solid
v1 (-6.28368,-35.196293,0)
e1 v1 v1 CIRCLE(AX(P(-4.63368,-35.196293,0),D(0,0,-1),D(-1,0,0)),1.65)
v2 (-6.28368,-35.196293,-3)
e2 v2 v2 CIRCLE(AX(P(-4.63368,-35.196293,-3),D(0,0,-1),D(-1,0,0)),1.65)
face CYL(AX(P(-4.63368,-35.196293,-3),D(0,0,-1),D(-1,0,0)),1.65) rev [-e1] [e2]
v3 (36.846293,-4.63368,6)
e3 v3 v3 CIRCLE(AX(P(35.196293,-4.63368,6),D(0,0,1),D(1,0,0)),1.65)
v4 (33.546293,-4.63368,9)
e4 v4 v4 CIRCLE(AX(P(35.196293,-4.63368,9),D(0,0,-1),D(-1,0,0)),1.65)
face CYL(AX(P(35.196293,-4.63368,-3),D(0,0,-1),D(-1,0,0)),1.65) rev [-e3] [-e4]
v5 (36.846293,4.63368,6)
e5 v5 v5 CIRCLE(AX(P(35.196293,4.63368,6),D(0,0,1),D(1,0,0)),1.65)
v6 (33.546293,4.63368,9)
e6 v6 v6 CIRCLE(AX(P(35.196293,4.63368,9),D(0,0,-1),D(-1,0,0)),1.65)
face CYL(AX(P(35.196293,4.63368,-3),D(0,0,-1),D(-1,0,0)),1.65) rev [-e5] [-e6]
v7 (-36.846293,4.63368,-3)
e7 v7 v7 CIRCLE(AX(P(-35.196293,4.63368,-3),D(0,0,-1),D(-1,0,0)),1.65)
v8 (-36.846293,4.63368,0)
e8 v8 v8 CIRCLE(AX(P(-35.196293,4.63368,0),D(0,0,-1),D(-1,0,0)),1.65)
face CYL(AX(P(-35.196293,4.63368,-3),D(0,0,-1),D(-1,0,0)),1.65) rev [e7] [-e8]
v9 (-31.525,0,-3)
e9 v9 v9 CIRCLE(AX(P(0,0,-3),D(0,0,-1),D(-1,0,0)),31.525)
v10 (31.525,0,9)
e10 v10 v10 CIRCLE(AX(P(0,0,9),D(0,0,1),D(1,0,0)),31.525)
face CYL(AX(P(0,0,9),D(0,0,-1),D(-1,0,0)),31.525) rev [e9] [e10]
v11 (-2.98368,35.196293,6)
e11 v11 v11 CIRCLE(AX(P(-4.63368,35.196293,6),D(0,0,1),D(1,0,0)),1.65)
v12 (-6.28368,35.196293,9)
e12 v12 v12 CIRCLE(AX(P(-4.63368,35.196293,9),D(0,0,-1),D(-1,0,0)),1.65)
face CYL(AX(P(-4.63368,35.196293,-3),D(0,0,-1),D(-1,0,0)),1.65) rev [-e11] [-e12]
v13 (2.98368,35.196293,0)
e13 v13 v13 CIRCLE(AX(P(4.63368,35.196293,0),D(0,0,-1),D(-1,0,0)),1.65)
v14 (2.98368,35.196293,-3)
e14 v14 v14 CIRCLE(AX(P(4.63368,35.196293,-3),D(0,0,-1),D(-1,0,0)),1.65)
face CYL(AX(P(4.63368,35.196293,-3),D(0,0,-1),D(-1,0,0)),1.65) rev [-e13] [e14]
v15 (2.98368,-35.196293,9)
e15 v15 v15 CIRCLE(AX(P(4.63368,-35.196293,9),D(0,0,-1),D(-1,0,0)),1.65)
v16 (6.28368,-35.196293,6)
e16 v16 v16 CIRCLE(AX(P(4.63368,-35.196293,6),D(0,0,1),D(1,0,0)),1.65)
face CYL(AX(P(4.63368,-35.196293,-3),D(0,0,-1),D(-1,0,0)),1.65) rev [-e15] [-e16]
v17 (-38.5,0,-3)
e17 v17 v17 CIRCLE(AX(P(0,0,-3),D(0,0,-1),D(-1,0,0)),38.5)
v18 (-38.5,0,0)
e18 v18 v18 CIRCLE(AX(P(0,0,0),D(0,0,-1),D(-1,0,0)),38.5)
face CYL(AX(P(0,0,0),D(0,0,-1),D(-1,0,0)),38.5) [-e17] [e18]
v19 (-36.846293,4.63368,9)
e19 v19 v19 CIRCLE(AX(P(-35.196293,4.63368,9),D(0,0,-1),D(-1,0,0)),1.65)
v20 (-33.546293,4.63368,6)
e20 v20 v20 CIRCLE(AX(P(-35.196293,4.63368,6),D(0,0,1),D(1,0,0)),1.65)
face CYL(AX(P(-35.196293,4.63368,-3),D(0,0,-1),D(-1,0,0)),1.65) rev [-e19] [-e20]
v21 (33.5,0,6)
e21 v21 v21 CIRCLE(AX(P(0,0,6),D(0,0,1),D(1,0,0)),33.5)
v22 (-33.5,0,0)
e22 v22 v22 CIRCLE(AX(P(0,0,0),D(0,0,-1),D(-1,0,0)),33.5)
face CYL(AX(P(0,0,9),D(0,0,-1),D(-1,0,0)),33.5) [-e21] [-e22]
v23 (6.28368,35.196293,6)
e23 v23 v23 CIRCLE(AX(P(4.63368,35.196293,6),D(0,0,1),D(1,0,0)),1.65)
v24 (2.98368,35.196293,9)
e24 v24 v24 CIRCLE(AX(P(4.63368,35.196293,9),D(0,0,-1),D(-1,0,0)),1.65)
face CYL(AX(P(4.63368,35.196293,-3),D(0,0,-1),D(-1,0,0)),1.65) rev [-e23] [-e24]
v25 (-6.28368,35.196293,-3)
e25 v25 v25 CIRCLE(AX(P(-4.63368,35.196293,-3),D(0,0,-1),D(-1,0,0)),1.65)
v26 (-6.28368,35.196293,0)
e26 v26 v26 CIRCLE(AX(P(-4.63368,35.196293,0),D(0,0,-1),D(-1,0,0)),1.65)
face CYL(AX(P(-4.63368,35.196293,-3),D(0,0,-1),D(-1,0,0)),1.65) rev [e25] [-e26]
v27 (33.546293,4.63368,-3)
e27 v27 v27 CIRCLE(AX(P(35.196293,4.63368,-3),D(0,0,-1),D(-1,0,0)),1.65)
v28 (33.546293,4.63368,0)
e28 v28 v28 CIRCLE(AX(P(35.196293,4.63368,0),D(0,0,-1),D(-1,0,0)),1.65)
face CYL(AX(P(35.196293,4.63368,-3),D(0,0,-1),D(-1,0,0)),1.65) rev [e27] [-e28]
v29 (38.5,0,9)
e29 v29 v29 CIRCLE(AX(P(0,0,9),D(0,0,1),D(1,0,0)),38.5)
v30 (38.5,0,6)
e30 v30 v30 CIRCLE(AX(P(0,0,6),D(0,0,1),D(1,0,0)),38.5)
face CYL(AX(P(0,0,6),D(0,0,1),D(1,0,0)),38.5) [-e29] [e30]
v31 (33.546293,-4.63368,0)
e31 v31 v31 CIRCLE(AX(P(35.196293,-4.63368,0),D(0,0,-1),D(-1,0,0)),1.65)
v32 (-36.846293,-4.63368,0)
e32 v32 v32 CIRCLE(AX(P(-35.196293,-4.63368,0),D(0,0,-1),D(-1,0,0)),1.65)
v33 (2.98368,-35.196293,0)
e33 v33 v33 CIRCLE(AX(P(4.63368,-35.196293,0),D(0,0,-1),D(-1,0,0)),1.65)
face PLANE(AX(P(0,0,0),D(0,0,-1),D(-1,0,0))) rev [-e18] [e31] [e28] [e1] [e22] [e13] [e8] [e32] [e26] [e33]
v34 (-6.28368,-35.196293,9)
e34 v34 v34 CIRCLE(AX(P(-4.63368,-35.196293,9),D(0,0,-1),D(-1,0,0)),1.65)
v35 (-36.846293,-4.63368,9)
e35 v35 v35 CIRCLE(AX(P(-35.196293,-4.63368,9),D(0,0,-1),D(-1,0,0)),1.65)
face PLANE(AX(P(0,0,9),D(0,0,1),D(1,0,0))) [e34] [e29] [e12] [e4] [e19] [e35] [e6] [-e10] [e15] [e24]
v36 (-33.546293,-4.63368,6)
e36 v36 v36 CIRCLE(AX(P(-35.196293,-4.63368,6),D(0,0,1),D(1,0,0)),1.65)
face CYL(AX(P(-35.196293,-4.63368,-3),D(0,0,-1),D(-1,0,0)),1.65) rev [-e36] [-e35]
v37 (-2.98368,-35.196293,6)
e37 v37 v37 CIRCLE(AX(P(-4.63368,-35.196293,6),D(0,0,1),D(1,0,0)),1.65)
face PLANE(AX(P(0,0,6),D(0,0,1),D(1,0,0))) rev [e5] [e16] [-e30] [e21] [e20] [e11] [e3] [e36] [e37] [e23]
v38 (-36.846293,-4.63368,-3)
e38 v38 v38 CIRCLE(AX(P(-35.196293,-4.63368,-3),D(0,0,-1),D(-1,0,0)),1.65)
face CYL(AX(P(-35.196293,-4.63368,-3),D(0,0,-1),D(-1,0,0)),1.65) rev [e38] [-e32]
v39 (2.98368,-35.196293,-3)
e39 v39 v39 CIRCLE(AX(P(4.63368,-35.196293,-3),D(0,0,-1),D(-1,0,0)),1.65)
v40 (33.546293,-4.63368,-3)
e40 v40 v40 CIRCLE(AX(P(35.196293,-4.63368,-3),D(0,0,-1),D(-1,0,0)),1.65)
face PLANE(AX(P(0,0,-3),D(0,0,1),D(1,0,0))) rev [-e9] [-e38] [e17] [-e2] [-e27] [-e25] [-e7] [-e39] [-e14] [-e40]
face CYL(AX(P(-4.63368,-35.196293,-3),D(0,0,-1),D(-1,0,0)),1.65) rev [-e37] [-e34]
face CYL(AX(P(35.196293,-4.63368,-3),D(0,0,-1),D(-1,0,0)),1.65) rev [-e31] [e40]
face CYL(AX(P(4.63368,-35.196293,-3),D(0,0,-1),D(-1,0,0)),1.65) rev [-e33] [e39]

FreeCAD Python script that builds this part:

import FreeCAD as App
import Part
import Sketcher

V = App.Vector

doc = App.newDocument("Part")
body = doc.addObject("PartDesign::Body", "Body")

# Sketch on XY plane
sketch1 = body.newObject("Sketcher::SketchObject", "Sketch")
sketch1.AttachmentSupport = (doc.getObject("XY_Plane"), [""])
sketch1.MapMode = "FlatFace"
sketch1.addGeometry(Part.Circle(V(0, 0, 0), V(0, 0, 1), 34), False)
sketch1.addGeometry(Part.Circle(V(0, 0, 0), V(0, 0, 1), 32), False)
sketch1.addConstraint(Sketcher.Constraint("Coincident", 0, 3, -1, 1))
sketch1.addConstraint(Sketcher.Constraint("Coincident", 1, 3, -1, 1))
sketch1.addConstraint(Sketcher.Constraint("Diameter", 0, 67.0))
sketch1.addConstraint(Sketcher.Constraint("Diameter", 1, 63.0))
pad1 = body.newObject("PartDesign::Pad", "Pad")
pad1.Profile = sketch1
pad1.Length = 9

# Sketch on XY plane
sketch2 = body.newObject("Sketcher::SketchObject", "Sketch001")
sketch2.AttachmentSupport = (doc.getObject("XY_Plane"), [""])
sketch2.MapMode = "FlatFace"
sketch2.AttachmentOffset = App.Placement(V(0, 0, -3), App.Rotation())
sketch2.addGeometry(Part.Circle(V(0, 0, 0), V(0, 0, 1), 34), False)
sketch2.addConstraint(Sketcher.Constraint("Coincident", 0, 3, -1, 1))
sketch2.addConstraint(Sketcher.Constraint("Diameter", 0, 67.0))
pad2 = body.newObject("PartDesign::Pad", "Pad001")
pad2.Profile = sketch2
pad2.Length = 3

# Sketch on XY plane
sketch3 = body.newObject("Sketcher::SketchObject", "Sketch002")
sketch3.AttachmentSupport = (doc.getObject("XY_Plane"), [""])
sketch3.MapMode = "FlatFace"
sketch3.AttachmentOffset = App.Placement(V(0, 0, -3), App.Rotation())
sketch3.addGeometry(Part.Circle(V(0, 0, 0), V(0, 0, 1), 38), False)
sketch3.addGeometry(Part.Circle(V(0, 0, 0), V(0, 0, 1), 34), False)
sketch3.addConstraint(Sketcher.Constraint("Coincident", 0, 3, -1, 1))
sketch3.addConstraint(Sketcher.Constraint("Coincident", 1, 3, -1, 1))
sketch3.addConstraint(Sketcher.Constraint("Diameter", 0, 77.0))
sketch3.addConstraint(Sketcher.Constraint("Diameter", 1, 67.0))
pad3 = body.newObject("PartDesign::Pad", "Pad002")
pad3.Profile = sketch3
pad3.Length = 3

# Sketch on XY plane
sketch4 = body.newObject("Sketcher::SketchObject", "Sketch003")
sketch4.AttachmentSupport = (doc.getObject("XY_Plane"), [""])
sketch4.MapMode = "FlatFace"
sketch4.AttachmentOffset = App.Placement(V(0, 0, 6), App.Rotation())
sketch4.addGeometry(Part.Circle(V(0, 0, 0), V(0, 0, 1), 38), False)
sketch4.addGeometry(Part.Circle(V(0, 0, 0), V(0, 0, 1), 34), False)
sketch4.addConstraint(Sketcher.Constraint("Coincident", 0, 3, -1, 1))
sketch4.addConstraint(Sketcher.Constraint("Coincident", 1, 3, -1, 1))
sketch4.addConstraint(Sketcher.Constraint("Diameter", 0, 77.0))
sketch4.addConstraint(Sketcher.Constraint("Diameter", 1, 67.0))
pad4 = body.newObject("PartDesign::Pad", "Pad003")
pad4.Profile = sketch4
pad4.Length = 3

# Sketch on XY plane
sketch5 = body.newObject("Sketcher::SketchObject", "Sketch004")
sketch5.AttachmentSupport = (doc.getObject("XY_Plane"), [""])
sketch5.MapMode = "FlatFace"
sketch5.AttachmentOffset = App.Placement(V(0, 0, -3), App.Rotation())
sketch5.addGeometry(Part.Circle(V(0, 11, 0), V(0, 0, 1), 2), False)
sketch5.addGeometry(Part.Circle(V(-11, 0, 0), V(0, 0, 1), 2), False)
sketch5.addGeometry(Part.Circle(V(0, -11, 0), V(0, 0, 1), 2), False)
sketch5.addGeometry(Part.Circle(V(11, 0, 0), V(0, 0, 1), 2), False)
sketch5.addConstraint(Sketcher.Constraint("Equal", 0, 1))
sketch5.addConstraint(Sketcher.Constraint("Equal", 1, 2))
sketch5.addConstraint(Sketcher.Constraint("Equal", 2, 3))
sketch5.addConstraint(Sketcher.Constraint("Symmetric", 0, 3, 2, 3, -1, 1))
sketch5.addConstraint(Sketcher.Constraint("Symmetric", 1, 3, 3, 3, -1, 1))
sketch5.addConstraint(Sketcher.Constraint("PointOnObject", 0, 3, -2))
sketch5.addConstraint(Sketcher.Constraint("PointOnObject", 1, 3, -1))
sketch5.addConstraint(Sketcher.Constraint("Diameter", 0, 4.0))
sketch5.addConstraint(Sketcher.Constraint("DistanceY", -1, 1, 0, 3, 11.0))
sketch5.addConstraint(Sketcher.Constraint("DistanceX", 1, 3, -1, 1, 11.0))
pocket1 = body.newObject("PartDesign::Pocket", "Pocket")
pocket1.Profile = sketch5
pocket1.Length = 10
pocket1.Reversed = True

# Sketch on XY plane
sketch6 = body.newObject("Sketcher::SketchObject", "Sketch005")
sketch6.AttachmentSupport = (doc.getObject("XY_Plane"), [""])
sketch6.MapMode = "FlatFace"
sketch6.AttachmentOffset = App.Placement(V(0, 0, -3), App.Rotation())
sketch6.addGeometry(Part.Circle(V(4.6, 35.2, 0), V(0, 0, 1), 1.6), False)
sketch6.addGeometry(Part.Circle(V(-4.6, 35.2, 0), V(0, 0, 1), 1.6), False)
sketch6.addConstraint(Sketcher.Constraint("Equal", 0, 1))
sketch6.addConstraint(Sketcher.Constraint("Symmetric", 0, 3, 1, 3, -2))
sketch6.addConstraint(Sketcher.Constraint("Diameter", 0, 3.3))
sketch6.addConstraint(Sketcher.Constraint("DistanceX", -1, 1, 0, 3, 4.63368))
sketch6.addConstraint(Sketcher.Constraint("DistanceY", -1, 1, 0, 3, 35.196293))
doc.recompute()
hole = body.newObject("PartDesign::Hole", "Hole")
hole.Profile = sketch6
hole.ThreadType = "None"
hole.Diameter = 3.3
hole.DepthType = "ThroughAll"
hole.Reversed = True
doc.recompute()

polarpattern = body.newObject("PartDesign::PolarPattern", "PolarPattern")
polarpattern.Originals = [hole]
polarpattern.Axis = (doc.getObject("Z_Axis"), [""])
polarpattern.Angle = 360
polarpattern.Occurrences = 4
body.Tip = polarpattern

# Sketch on XY plane
sketch7 = body.newObject("Sketcher::SketchObject", "Sketch006")
sketch7.AttachmentSupport = (doc.getObject("XY_Plane"), [""])
sketch7.MapMode = "FlatFace"
sketch7.addGeometry(Part.Circle(V(0, 0, 0), V(0, 0, 1), 32), False)
sketch7.addConstraint(Sketcher.Constraint("Coincident", 0, 3, -1, 1))
sketch7.addConstraint(Sketcher.Constraint("Diameter", 0, 63.05))
pocket2 = body.newObject("PartDesign::Pocket", "Pocket001")
pocket2.Profile = sketch7
pocket2.Type = "ThroughAll"
pocket2.Reversed = True

# Sketch on XY plane
sketch8 = body.newObject("Sketcher::SketchObject", "Sketch007")
sketch8.AttachmentSupport = (doc.getObject("XY_Plane"), [""])
sketch8.MapMode = "FlatFace"
sketch8.AttachmentOffset = App.Placement(V(0, 0, -3), App.Rotation())
sketch8.addGeometry(Part.Circle(V(0, 0, 0), V(0, 0, 1), 32), False)
sketch8.addConstraint(Sketcher.Constraint("Coincident", 0, 3, -1, 1))
sketch8.addConstraint(Sketcher.Constraint("Diameter", 0, 63.05))
pocket3 = body.newObject("PartDesign::Pocket", "Pocket002")
pocket3.Profile = sketch8
pocket3.Length = 10
pocket3.Reversed = True

doc.recompute()
